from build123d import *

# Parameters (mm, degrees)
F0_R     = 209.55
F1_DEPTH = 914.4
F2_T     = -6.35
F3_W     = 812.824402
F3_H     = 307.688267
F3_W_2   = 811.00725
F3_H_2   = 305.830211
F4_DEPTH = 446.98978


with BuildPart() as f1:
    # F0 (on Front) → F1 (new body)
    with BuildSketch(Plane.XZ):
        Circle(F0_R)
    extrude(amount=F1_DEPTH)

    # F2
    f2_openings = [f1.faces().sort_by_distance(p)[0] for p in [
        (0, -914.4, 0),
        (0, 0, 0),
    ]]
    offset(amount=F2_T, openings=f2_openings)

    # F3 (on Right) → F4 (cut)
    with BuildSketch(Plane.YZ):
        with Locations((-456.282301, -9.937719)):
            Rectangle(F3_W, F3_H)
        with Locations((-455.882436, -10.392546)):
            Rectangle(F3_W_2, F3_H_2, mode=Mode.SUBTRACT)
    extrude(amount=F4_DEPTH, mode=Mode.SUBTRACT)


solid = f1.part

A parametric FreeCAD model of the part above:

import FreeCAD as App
import Part
import Sketcher
Q = App.Units.Quantity


def faces_at(feature, points):
    """Names of the faces that lie closest to the given points."""
    faces = feature.Shape.Faces
    near = lambda p: min(range(len(faces)), key=lambda i: faces[i].distToShape(Part.Vertex(*p))[0])
    return sorted({f"Face{near(p) + 1}" for p in points})

doc = App.newDocument("Part")
body = doc.addObject("PartDesign::Body", "Body")
body.AllowCompound = True

# Sketch on XZ plane
sketch1 = body.newObject("Sketcher::SketchObject", "Sketch")
sketch1.AttachmentSupport = (doc.getObject("XZ_Plane"), [""])
sketch1.MapMode = "FlatFace"
sketch1.addGeometry(Part.Circle(App.Vector(0, 0, 0), App.Vector(0, 0, 1), 210), False)
sketch1.addConstraint([
    Sketcher.Constraint("Coincident", 0, 3, -1, 1),
    Sketcher.Constraint("Diameter", 0, Q("16.5 in")),
])
pad1 = body.newObject("PartDesign::Pad", "Pad")
pad1.Profile = sketch1
pad1.Length = Q("36 in")
doc.recompute()

thickness = body.newObject("PartDesign::Thickness", "Thickness")
thickness.Base = (pad1, faces_at(pad1, [(0, -914.4, 0), (0, 0, 0)]))
thickness.Value = Q("0.25 in")
thickness.Reversed = True
thickness.Join = "Arc"

# Sketch on YZ plane
sketch2 = body.newObject("Sketcher::SketchObject", "Sketch001")
sketch2.AttachmentSupport = (doc.getObject("YZ_Plane"), [""])
sketch2.MapMode = "FlatFace"
sketch2.addGeometry([
    Part.LineSegment(App.Vector(-863, 144, 0), App.Vector(-863, -164, 0)),  # 0
    Part.LineSegment(App.Vector(-863, -164, 0), App.Vector(-50, -164, 0)),  # 1
    Part.LineSegment(App.Vector(-50, -164, 0), App.Vector(-50, 144, 0)),  # 2
    Part.LineSegment(App.Vector(-50, 144, 0), App.Vector(-863, 144, 0)),  # 3
    Part.LineSegment(App.Vector(-50, -163, 0), App.Vector(-861, -163, 0)),  # 4
    Part.LineSegment(App.Vector(-861, -163, 0), App.Vector(-861, 143, 0)),  # 5
    Part.LineSegment(App.Vector(-861, 143, 0), App.Vector(-50, 143, 0)),  # 6
    Part.LineSegment(App.Vector(-50, 143, 0), App.Vector(-50, -163, 0)),  # 7
], False)
sketch2.addConstraint([
    Sketcher.Constraint("Coincident", 0, 2, 1, 1),
    Sketcher.Constraint("Coincident", 1, 2, 2, 1),
    Sketcher.Constraint("Coincident", 2, 2, 3, 1),
    Sketcher.Constraint("Coincident", 3, 2, 0, 1),
    Sketcher.Constraint("Coincident", 4, 2, 5, 1),
    Sketcher.Constraint("Coincident", 5, 2, 6, 1),
    Sketcher.Constraint("Coincident", 6, 2, 7, 1),
    Sketcher.Constraint("Coincident", 7, 2, 4, 1),
    Sketcher.Constraint("Vertical", 0),
    Sketcher.Constraint("Horizontal", 1),
    Sketcher.Constraint("Vertical", 2),
    Sketcher.Constraint("Horizontal", 3),
    Sketcher.Constraint("Horizontal", 4),
    Sketcher.Constraint("Vertical", 5),
    Sketcher.Constraint("Horizontal", 6),
    Sketcher.Constraint("Vertical", 7),
    Sketcher.Constraint("DistanceX", 4, 2, 4, 1, Q("811.00725 mm")),
    Sketcher.Constraint("DistanceY", 5, 1, 5, 2, Q("305.830211 mm")),
    Sketcher.Constraint("DistanceX", 1, 2, -1, 1, Q("49.8701 mm")),
    Sketcher.Constraint("DistanceY", 0, 2, 4, 2, Q("0.474201 mm")),
    Sketcher.Constraint("DistanceX", 1, 1, 1, 2, Q("812.824402 mm")),
    Sketcher.Constraint("DistanceY", 0, 2, 0, 1, Q("307.688267 mm")),
    Sketcher.Constraint("DistanceX", 4, 2, -1, 1, Q("861.386061 mm")),
    Sketcher.Constraint("DistanceY", 4, 2, -1, 1, Q("163.307651 mm")),
])
pocket1 = body.newObject("PartDesign::Pocket", "Pocket")
pocket1.Profile = sketch2
pocket1.Length = 446.98978
pocket1.Reversed = True

doc.recompute()
